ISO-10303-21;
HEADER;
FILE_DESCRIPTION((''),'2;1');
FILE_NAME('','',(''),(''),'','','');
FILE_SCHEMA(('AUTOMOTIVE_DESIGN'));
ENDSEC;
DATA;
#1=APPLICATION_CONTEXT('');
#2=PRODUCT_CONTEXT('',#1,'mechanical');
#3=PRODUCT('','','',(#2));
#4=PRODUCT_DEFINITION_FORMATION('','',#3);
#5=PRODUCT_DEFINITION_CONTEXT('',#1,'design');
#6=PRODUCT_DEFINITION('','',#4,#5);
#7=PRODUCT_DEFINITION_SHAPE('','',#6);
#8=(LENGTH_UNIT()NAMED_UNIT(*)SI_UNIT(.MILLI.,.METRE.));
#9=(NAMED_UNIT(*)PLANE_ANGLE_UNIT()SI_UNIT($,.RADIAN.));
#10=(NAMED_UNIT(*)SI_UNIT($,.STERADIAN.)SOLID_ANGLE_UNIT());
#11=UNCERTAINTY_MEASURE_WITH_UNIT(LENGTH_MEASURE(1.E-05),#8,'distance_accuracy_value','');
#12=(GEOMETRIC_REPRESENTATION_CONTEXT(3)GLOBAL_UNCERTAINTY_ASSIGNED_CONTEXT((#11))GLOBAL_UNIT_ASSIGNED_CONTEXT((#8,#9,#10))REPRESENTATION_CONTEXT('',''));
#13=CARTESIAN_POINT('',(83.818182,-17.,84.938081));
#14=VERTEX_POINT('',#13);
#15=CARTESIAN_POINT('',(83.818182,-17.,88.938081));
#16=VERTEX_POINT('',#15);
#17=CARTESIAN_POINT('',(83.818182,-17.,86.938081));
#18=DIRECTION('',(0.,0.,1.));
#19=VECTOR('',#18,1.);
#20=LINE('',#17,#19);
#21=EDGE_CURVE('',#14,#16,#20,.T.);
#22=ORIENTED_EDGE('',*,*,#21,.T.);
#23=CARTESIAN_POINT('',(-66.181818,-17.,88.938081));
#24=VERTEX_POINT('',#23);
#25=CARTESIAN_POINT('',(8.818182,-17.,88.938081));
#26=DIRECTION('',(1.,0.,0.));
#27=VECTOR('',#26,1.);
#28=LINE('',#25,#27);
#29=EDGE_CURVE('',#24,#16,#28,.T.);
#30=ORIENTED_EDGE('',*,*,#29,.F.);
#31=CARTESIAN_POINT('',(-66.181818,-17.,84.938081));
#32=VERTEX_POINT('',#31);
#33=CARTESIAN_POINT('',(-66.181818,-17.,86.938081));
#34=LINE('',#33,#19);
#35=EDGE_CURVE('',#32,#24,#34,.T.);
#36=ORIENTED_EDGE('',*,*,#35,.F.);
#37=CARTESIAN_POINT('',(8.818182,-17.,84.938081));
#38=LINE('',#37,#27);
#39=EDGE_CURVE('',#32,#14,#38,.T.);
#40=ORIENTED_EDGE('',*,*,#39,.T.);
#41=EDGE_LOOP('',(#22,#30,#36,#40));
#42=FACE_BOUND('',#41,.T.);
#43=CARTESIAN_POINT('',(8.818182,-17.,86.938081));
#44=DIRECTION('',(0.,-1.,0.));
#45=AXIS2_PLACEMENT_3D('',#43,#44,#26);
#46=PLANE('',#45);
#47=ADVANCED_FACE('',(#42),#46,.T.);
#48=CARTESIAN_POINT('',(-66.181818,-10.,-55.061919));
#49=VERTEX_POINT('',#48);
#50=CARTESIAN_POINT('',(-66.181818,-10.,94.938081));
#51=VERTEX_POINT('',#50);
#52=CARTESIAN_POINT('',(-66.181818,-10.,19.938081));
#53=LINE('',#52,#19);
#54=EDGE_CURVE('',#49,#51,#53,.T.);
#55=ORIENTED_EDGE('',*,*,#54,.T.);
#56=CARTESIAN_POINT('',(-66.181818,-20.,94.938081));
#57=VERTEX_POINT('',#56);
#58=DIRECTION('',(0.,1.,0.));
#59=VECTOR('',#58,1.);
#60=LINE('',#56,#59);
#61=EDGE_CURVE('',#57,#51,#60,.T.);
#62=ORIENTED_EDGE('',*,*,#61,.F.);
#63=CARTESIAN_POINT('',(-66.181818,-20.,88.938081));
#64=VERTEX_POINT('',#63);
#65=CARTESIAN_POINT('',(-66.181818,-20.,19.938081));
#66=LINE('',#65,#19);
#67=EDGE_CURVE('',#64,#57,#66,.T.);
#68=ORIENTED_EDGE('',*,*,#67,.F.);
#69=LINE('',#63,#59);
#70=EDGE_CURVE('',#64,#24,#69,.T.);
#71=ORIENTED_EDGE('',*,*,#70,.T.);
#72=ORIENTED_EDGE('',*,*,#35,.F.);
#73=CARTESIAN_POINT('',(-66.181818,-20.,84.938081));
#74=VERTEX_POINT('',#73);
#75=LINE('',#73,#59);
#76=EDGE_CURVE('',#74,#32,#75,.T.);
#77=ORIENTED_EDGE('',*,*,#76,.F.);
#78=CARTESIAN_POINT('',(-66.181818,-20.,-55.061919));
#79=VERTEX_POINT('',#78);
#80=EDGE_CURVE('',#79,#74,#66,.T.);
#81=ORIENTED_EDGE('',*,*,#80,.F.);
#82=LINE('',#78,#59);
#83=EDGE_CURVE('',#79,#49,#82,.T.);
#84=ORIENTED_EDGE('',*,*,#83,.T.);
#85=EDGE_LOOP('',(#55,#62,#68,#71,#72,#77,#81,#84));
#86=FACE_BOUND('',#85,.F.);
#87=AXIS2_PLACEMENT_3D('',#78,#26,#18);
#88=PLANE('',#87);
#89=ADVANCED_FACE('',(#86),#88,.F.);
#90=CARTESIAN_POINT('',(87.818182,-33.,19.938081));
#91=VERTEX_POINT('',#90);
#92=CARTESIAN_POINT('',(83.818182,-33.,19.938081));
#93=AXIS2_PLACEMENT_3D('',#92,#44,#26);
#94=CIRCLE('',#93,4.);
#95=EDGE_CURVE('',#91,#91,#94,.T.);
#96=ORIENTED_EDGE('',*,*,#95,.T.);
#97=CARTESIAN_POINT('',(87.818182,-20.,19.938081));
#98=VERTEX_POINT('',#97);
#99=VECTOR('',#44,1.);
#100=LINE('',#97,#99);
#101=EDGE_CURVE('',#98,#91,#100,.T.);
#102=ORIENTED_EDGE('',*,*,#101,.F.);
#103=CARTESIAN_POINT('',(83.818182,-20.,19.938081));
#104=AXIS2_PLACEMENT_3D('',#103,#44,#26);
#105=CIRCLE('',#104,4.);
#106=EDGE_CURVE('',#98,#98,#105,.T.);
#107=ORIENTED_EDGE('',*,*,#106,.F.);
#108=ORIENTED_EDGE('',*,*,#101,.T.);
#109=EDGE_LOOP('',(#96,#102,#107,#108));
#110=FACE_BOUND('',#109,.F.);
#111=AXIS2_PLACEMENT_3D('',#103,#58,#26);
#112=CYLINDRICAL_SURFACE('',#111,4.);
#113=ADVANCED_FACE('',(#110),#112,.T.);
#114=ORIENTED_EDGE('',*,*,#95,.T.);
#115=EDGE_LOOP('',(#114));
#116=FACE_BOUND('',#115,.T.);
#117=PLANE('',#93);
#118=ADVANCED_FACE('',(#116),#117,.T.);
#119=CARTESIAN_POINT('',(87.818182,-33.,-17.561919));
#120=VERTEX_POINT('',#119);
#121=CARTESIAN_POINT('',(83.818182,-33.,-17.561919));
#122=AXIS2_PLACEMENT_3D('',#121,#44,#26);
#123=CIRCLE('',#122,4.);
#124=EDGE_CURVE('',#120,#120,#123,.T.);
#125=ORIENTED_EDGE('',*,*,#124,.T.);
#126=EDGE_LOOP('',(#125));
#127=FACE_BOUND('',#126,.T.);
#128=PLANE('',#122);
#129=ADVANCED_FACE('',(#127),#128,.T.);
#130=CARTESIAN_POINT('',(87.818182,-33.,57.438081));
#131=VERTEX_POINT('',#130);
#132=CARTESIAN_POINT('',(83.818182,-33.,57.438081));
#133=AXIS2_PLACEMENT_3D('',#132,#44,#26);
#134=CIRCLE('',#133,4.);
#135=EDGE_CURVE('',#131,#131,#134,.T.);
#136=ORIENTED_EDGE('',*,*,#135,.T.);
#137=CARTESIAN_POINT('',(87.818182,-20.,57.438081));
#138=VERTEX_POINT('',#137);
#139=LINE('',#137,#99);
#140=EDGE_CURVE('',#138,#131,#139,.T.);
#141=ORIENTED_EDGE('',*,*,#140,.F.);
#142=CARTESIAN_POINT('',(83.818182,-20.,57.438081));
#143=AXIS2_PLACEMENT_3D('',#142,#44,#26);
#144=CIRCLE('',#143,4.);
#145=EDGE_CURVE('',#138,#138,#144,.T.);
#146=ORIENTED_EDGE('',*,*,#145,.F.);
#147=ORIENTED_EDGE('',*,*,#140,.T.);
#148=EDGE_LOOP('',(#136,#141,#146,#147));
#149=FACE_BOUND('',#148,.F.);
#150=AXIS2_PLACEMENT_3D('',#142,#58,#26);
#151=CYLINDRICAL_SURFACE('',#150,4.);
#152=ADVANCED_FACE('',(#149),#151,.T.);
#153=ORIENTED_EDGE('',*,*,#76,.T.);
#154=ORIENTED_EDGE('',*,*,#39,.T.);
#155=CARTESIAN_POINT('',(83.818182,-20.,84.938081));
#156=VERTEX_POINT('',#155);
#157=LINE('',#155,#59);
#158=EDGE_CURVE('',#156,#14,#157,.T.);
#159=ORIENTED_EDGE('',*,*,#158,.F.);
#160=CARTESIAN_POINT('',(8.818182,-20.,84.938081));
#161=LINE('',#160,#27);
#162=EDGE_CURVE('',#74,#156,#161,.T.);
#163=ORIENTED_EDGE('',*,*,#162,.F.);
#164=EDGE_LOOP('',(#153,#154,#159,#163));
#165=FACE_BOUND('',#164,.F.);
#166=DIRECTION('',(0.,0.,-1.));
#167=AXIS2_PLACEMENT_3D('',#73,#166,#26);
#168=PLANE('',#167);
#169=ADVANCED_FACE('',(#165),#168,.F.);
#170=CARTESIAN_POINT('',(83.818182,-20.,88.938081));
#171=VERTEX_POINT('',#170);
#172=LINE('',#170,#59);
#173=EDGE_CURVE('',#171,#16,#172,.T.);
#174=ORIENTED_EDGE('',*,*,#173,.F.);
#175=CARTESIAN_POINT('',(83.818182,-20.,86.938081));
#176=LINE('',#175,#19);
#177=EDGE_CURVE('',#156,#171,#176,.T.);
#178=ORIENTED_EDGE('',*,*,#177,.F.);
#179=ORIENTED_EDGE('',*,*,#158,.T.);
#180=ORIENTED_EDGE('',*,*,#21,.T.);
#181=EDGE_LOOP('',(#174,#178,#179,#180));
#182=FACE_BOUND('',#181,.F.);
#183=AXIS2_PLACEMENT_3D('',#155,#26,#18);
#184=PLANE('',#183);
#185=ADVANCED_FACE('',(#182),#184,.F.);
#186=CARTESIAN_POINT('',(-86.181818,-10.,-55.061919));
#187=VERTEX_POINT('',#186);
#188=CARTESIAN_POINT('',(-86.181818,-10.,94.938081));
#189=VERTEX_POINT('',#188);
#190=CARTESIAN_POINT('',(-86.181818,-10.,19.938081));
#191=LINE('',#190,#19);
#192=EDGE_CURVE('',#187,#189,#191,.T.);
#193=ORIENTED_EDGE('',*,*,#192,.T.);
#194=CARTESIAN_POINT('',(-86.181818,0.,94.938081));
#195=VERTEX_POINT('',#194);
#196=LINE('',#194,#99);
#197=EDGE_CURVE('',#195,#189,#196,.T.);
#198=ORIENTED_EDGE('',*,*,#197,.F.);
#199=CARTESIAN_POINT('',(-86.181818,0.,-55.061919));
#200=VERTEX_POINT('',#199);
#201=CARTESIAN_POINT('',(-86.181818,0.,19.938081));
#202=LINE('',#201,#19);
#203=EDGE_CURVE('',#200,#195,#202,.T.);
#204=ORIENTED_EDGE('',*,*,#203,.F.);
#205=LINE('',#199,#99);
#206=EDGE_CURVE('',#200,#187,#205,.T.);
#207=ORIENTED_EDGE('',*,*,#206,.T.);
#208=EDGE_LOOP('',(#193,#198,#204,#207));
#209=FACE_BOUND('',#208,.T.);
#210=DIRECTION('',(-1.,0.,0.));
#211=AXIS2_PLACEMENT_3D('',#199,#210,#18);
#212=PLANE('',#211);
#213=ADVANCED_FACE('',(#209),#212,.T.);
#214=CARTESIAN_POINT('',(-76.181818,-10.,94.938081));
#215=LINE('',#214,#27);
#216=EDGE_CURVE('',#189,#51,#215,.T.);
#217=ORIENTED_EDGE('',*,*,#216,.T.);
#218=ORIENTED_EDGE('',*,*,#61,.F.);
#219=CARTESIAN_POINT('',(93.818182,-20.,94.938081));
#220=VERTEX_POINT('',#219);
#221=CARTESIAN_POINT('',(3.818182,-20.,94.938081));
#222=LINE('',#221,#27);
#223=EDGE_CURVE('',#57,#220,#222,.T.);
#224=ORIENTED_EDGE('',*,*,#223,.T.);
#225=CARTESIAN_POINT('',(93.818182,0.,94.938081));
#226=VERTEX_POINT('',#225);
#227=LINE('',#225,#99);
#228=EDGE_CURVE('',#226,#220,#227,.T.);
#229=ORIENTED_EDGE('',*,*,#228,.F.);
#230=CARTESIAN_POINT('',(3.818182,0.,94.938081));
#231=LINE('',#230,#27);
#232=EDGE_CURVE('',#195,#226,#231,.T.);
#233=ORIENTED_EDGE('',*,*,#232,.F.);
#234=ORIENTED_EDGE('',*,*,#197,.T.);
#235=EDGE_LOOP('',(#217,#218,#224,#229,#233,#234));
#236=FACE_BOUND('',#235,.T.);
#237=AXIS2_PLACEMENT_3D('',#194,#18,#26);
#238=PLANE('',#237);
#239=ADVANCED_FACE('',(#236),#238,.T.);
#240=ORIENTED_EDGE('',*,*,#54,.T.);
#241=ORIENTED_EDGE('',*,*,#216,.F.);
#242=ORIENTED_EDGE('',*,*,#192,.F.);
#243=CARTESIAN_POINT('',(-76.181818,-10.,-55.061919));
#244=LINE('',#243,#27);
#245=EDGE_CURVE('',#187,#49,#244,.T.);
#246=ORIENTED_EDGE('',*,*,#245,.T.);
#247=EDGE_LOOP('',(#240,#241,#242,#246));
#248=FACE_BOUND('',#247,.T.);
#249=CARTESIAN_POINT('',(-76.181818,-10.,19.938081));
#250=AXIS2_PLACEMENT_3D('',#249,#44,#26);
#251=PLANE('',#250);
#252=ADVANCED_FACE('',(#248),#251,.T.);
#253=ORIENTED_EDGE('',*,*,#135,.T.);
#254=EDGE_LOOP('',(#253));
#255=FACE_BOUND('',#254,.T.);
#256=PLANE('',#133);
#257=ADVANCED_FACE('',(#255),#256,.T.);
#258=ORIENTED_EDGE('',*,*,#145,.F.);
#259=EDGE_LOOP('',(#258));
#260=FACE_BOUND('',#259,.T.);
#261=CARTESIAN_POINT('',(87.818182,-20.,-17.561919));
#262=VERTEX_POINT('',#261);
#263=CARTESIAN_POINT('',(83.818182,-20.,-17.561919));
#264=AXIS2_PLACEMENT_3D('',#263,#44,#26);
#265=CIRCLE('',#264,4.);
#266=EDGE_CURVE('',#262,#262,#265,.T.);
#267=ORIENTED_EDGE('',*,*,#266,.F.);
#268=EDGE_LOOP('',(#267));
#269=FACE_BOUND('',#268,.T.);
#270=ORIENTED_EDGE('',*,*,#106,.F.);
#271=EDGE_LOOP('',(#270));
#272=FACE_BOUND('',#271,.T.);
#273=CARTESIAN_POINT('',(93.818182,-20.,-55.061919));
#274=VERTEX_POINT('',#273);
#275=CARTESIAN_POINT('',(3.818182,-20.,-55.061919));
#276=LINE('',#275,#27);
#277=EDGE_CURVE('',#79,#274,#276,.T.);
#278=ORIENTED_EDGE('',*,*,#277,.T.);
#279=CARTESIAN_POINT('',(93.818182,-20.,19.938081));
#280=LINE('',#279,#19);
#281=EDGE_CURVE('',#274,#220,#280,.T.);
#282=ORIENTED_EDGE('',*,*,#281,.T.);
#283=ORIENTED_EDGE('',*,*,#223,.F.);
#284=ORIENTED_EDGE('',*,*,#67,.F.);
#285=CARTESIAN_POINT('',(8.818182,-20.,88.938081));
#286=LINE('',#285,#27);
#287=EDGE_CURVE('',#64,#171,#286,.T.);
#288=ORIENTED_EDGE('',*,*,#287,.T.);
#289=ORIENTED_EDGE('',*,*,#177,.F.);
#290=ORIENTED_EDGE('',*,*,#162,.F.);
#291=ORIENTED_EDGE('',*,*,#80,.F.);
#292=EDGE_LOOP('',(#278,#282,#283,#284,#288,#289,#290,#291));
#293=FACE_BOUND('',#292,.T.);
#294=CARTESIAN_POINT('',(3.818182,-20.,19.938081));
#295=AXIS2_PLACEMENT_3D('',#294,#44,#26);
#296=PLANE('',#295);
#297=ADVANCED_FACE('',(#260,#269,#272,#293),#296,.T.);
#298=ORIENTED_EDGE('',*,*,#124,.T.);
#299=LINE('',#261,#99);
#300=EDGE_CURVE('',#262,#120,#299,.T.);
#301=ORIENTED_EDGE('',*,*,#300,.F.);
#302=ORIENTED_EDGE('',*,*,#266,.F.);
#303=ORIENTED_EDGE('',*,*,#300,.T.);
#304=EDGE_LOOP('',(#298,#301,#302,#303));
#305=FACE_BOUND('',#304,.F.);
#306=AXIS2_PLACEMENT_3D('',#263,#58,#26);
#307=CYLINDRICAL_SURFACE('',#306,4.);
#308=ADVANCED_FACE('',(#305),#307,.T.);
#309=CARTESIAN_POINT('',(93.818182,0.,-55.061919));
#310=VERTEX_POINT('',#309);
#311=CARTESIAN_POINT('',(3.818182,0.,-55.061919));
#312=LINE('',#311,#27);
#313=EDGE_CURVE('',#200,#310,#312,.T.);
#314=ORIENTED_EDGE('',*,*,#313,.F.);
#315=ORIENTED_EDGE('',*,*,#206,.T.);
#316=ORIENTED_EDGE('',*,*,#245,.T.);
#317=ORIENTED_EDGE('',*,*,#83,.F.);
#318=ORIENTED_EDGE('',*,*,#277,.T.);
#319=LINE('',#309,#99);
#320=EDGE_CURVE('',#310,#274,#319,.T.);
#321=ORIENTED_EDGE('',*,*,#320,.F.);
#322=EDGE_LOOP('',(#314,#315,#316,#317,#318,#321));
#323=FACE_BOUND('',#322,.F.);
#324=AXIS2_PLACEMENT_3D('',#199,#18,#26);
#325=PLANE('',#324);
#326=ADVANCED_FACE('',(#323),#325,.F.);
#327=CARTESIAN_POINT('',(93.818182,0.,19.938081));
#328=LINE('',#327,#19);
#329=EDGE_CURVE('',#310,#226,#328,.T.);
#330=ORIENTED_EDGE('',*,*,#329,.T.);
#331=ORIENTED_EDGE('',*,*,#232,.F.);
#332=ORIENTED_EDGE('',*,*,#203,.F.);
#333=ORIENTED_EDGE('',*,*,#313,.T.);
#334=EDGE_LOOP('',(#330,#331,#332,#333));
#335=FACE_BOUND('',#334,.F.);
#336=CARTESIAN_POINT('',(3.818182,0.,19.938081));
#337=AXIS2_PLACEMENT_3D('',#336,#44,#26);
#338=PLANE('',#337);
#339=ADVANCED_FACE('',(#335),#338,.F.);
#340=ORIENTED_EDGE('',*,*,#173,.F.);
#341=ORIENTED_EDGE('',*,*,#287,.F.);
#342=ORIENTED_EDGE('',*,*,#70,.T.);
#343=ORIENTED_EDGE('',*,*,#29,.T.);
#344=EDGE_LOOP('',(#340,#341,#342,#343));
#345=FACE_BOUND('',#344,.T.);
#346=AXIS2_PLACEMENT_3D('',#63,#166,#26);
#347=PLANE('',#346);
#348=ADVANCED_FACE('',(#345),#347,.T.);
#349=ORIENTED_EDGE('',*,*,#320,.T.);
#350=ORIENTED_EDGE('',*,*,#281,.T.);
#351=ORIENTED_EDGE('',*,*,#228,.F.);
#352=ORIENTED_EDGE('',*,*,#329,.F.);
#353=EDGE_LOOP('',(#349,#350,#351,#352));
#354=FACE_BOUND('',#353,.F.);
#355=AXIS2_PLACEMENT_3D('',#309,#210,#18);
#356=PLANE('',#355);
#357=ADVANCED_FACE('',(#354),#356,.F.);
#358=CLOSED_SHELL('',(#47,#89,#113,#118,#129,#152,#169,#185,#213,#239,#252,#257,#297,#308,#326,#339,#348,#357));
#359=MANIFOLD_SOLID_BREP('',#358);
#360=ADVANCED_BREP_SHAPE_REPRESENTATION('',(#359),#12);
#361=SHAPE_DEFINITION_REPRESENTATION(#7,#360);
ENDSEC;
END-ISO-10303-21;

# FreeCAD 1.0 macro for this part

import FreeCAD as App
import Part
import Sketcher
from FreeCAD import Vector
Q = App.Units.Quantity


def add_polygon(sketch, points):
    """Adds a closed chain of lines whose ends are joined by coincident constraints."""
    first, n = sketch.GeometryCount, len(points)
    for a, b in zip(points, points[1:] + points[:1]):
        sketch.addGeometry(Part.LineSegment(App.Vector(*a, 0), App.Vector(*b, 0)), False)
    for i in range(n):
        sketch.addConstraint(Sketcher.Constraint("Coincident", first + i, 2, first + (i + 1) % n, 1))

doc = App.newDocument("Part")
params = doc.addObject("Spreadsheet::Sheet", "Params")
for row, (alias, value) in enumerate([
    ("sketch1_width", "180 mm"),
    ("sketch1_height", "150 mm"),
    ("pad1_length", "20 mm"),
    ("sketch2_width", "20 mm"),
    ("sketch2_height", "150 mm"),
    ("pocket1_length", "10 mm"),
    ("sketch3_diameter", "8 mm"),
    ("pad2_length", "13 mm"),
    ("sketch4_width", "150 mm"),
    ("sketch4_height", "4 mm"),
    ("pocket2_length", "3 mm"),
], start=1):
    params.set(f"A{row}", alias)
    params.set(f"B{row}", "=" + value)
    params.setAlias(f"B{row}", alias)

body = doc.addObject("PartDesign::Body", "Body")

sketch1 = body.newObject("Sketcher::SketchObject", "Sketch")
sketch1.AttachmentSupport = (doc.getObject("XZ_Plane"), [""])
sketch1.MapMode = "FlatFace"
add_polygon(sketch1, [(-86, 95), (-86, -55), (94, -55), (94, 95)])
sketch1.addConstraint([
    Sketcher.Constraint("Vertical", 0),
    Sketcher.Constraint("Horizontal", 1),
    Sketcher.Constraint("Vertical", 2),
    Sketcher.Constraint("Horizontal", 3),
    Sketcher.Constraint("DistanceX", 1, 1, 1, 2, Q("180 mm")),
    Sketcher.Constraint("DistanceY", 0, 2, 0, 1, Q("150 mm")),
    Sketcher.Constraint("DistanceX", 0, 2, -1, 1, Q("86.181818 mm")),
    Sketcher.Constraint("DistanceY", 0, 2, -1, 1, Q("55.061919 mm")),
])
sketch1.setExpression("Constraints[8]", "Params.sketch1_width")
sketch1.setExpression("Constraints[9]", "Params.sketch1_height")
pad1 = body.newObject("PartDesign::Pad", "Pad")
pad1.Profile = sketch1
pad1.setExpression("Length", "Params.pad1_length")

sketch2 = body.newObject("Sketcher::SketchObject", "Sketch001")
sketch2.AttachmentSupport = (doc.getObject("XZ_Plane"), [""])
sketch2.MapMode = "FlatFace"
sketch2.AttachmentOffset = App.Placement(Vector(0, 0, 20), App.Rotation())
add_polygon(sketch2, [(-86, 95), (-86, -55), (-66, -55), (-66, 95)])
sketch2.addConstraint([
    Sketcher.Constraint("Vertical", 0),
    Sketcher.Constraint("Horizontal", 1),
    Sketcher.Constraint("Vertical", 2),
    Sketcher.Constraint("Horizontal", 3),
    Sketcher.Constraint("DistanceX", 1, 1, 1, 2, Q("20 mm")),
    Sketcher.Constraint("DistanceY", 0, 2, 0, 1, Q("150 mm")),
    Sketcher.Constraint("DistanceX", 0, 2, -1, 1, Q("86.181818 mm")),
    Sketcher.Constraint("DistanceY", 0, 2, -1, 1, Q("55.061919 mm")),
])
sketch2.setExpression("Constraints[8]", "Params.sketch2_width")
sketch2.setExpression("Constraints[9]", "Params.sketch2_height")
pocket1 = body.newObject("PartDesign::Pocket", "Pocket")
pocket1.Profile = sketch2
pocket1.setExpression("Length", "Params.pocket1_length")

sketch3 = body.newObject("Sketcher::SketchObject", "Sketch002")
sketch3.AttachmentSupport = (doc.getObject("XZ_Plane"), [""])
sketch3.MapMode = "FlatFace"
sketch3.AttachmentOffset = App.Placement(Vector(0, 0, 20), App.Rotation())
sketch3.addGeometry([
    Part.Circle(Vector(83.8, 57.4, 0), Vector(0, 0, 1), 4),
    Part.Circle(Vector(83.8, 19.9, 0), Vector(0, 0, 1), 4),
    Part.Circle(Vector(83.8, -17.6, 0), Vector(0, 0, 1), 4),
], False)
sketch3.addConstraint([
    Sketcher.Constraint("Equal", 0, 1),
    Sketcher.Constraint("Equal", 1, 2),
    Sketcher.Constraint("Vertical", 0, 3, 1, 3),
    Sketcher.Constraint("Vertical", 1, 3, 2, 3),
    Sketcher.Constraint("Diameter", 0, Q("8 mm")),
    Sketcher.Constraint("DistanceY", 2, 3, 0, 3, Q("75 mm")),
    Sketcher.Constraint("DistanceY", 1, 3, 0, 3, Q("37.5 mm")),
    Sketcher.Constraint("DistanceX", -1, 1, 0, 3, Q("83.818182 mm")),
    Sketcher.Constraint("DistanceY", -1, 1, 0, 3, Q("57.438081 mm")),
])
sketch3.setExpression("Constraints[4]", "Params.sketch3_diameter")
pad2 = body.newObject("PartDesign::Pad", "Pad001")
pad2.Profile = sketch3
pad2.setExpression("Length", "Params.pad2_length")

sketch4 = body.newObject("Sketcher::SketchObject", "Sketch003")
sketch4.AttachmentSupport = (doc.getObject("XZ_Plane"), [""])
sketch4.MapMode = "FlatFace"
sketch4.AttachmentOffset = App.Placement(Vector(0, 0, 20), App.Rotation())
add_polygon(sketch4, [(-66.2, 88.9), (-66.2, 84.9), (83.8, 84.9), (83.8, 88.9)])
sketch4.addConstraint([
    Sketcher.Constraint("Vertical", 0),
    Sketcher.Constraint("Horizontal", 1),
    Sketcher.Constraint("Vertical", 2),
    Sketcher.Constraint("Horizontal", 3),
    Sketcher.Constraint("DistanceX", 1, 1, 1, 2, Q("150 mm")),
    Sketcher.Constraint("DistanceY", 0, 2, 0, 1, Q("4 mm")),
    Sketcher.Constraint("DistanceX", 0, 2, -1, 1, Q("66.181818 mm")),
    Sketcher.Constraint("DistanceY", -1, 1, 0, 2, Q("84.938081 mm")),
])
sketch4.setExpression("Constraints[8]", "Params.sketch4_width")
sketch4.setExpression("Constraints[9]", "Params.sketch4_height")
pocket2 = body.newObject("PartDesign::Pocket", "Pocket001")
pocket2.Profile = sketch4
pocket2.setExpression("Length", "Params.pocket2_length")

doc.recompute()
